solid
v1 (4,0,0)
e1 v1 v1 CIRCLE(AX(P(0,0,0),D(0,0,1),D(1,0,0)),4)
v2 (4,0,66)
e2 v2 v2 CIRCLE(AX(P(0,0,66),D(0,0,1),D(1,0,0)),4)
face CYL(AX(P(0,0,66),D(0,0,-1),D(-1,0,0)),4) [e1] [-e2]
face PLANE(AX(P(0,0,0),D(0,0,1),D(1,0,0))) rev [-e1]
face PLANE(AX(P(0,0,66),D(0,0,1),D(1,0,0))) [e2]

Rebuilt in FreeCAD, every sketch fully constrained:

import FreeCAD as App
import Part
import Sketcher

doc = App.newDocument("Part")
body = doc.addObject("PartDesign::Body", "Body")

sketch1 = body.newObject("Sketcher::SketchObject", "Sketch")
sketch1.AttachmentSupport = (doc.getObject("XY_Plane"), [""])
sketch1.MapMode = "FlatFace"
sketch1.addGeometry(Part.Circle(App.Vector(0, 0, 0), App.Vector(0, 0, 1), 4), False)
sketch1.addConstraint([
    Sketcher.Constraint("Coincident", 0, 3, -1, 1),
    Sketcher.Constraint("Diameter", 0, 8.0),
])
pad1 = body.newObject("PartDesign::Pad", "Pad")
pad1.Profile = sketch1
pad1.Length = 66

doc.recompute()
